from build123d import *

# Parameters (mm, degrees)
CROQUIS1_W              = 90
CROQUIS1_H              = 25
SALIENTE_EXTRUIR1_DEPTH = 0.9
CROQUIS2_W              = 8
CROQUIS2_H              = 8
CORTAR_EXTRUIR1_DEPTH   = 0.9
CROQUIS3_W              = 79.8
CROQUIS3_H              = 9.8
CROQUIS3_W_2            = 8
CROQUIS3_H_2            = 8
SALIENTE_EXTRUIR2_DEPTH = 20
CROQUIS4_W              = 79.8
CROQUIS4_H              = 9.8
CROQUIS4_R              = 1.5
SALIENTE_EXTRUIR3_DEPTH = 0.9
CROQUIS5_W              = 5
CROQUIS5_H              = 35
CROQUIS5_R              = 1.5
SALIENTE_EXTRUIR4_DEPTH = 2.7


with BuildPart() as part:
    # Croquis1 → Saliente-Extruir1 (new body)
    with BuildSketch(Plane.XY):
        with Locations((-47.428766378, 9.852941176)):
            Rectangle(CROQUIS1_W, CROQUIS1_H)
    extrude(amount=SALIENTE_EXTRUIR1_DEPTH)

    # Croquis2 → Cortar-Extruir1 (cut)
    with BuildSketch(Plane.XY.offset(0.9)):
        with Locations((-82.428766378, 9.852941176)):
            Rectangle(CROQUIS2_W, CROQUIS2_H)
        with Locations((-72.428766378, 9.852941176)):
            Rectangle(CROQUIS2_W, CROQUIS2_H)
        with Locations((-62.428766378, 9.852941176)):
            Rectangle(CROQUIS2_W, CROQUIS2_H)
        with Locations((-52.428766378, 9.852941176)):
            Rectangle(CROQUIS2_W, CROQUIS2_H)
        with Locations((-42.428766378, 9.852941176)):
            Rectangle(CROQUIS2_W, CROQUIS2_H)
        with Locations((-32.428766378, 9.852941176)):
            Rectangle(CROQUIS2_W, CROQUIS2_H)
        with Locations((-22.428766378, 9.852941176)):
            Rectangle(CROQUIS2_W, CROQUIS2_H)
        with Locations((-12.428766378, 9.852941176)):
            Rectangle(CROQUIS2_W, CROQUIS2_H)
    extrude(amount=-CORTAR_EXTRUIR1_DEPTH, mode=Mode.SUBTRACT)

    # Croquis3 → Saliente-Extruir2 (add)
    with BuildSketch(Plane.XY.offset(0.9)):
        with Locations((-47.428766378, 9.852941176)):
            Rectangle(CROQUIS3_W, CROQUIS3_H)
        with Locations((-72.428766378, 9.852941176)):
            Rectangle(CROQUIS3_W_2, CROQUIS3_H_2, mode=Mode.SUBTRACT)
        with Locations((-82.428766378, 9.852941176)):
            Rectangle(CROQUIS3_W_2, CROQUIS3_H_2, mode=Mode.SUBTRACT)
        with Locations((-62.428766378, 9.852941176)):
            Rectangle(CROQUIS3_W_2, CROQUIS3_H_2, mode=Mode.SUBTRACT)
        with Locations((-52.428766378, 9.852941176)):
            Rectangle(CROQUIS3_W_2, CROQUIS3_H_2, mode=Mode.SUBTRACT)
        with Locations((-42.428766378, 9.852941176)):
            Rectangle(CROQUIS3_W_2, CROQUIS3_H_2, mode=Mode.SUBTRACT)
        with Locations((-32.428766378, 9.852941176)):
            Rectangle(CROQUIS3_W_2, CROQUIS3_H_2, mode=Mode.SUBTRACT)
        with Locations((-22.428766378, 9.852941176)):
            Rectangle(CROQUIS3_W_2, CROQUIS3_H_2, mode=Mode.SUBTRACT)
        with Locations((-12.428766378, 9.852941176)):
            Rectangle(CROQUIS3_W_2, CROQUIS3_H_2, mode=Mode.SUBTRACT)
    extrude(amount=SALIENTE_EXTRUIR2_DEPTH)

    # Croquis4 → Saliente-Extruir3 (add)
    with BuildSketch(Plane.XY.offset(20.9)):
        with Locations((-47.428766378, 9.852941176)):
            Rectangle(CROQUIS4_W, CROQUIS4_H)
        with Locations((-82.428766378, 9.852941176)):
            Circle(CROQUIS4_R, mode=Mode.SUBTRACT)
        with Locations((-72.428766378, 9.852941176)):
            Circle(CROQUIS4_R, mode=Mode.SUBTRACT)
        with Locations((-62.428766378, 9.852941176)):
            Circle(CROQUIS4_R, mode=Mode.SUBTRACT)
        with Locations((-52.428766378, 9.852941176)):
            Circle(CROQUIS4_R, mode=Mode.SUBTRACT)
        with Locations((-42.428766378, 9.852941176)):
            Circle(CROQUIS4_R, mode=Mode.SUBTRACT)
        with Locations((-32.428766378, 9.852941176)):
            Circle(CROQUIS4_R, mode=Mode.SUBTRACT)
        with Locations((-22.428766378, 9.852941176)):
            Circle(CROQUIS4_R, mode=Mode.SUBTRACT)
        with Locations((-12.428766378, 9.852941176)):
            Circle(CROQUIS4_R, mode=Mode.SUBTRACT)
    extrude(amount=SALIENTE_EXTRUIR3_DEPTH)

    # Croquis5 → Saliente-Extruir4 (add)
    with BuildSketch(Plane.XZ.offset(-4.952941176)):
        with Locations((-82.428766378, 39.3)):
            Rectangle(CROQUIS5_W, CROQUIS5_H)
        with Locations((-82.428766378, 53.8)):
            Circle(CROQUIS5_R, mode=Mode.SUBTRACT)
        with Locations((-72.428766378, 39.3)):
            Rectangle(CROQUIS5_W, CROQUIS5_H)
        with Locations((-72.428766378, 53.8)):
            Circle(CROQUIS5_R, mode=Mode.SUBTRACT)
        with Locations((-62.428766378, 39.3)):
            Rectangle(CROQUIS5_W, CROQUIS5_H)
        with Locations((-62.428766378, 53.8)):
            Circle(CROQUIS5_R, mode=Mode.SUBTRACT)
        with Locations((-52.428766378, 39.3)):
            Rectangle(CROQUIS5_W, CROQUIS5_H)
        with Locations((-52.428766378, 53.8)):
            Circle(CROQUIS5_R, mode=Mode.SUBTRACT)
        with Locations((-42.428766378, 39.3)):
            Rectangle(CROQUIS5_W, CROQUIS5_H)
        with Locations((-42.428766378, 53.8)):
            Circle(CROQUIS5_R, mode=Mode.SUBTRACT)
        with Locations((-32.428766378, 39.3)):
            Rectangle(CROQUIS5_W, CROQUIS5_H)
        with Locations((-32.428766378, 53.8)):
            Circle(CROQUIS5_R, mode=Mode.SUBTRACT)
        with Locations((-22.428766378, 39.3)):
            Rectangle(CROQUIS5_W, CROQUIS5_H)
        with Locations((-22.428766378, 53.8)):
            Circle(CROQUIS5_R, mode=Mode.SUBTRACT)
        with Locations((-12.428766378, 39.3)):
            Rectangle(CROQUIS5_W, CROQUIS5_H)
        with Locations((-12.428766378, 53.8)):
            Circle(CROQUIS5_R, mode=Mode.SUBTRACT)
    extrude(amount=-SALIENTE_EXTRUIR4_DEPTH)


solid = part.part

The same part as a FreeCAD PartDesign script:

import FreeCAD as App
import Part
import Sketcher
Q = App.Units.Quantity


def add_polygon(sketch, points):
    """Adds a closed chain of lines whose ends are joined by coincident constraints."""
    first, n = sketch.GeometryCount, len(points)
    for a, b in zip(points, points[1:] + points[:1]):
        sketch.addGeometry(Part.LineSegment(App.Vector(*a, 0), App.Vector(*b, 0)), False)
    for i in range(n):
        sketch.addConstraint(Sketcher.Constraint("Coincident", first + i, 2, first + (i + 1) % n, 1))

doc = App.newDocument("Part")
params = doc.addObject("Spreadsheet::Sheet", "Params")
for row, (alias, value) in enumerate([
    ("sketch1_width", "90 mm"),
    ("sketch1_height", "25 mm"),
    ("pad1_length", "0.9 mm"),
    ("sketch2_width", "8 mm"),
    ("pocket1_length", "0.9 mm"),
    ("sketch3_width", "8 mm"),
    ("sketch3_width2", "79.8 mm"),
    ("sketch3_height", "9.8 mm"),
    ("pad2_length", "20 mm"),
    ("sketch4_diameter", "3 mm"),
    ("sketch4_width", "79.8 mm"),
    ("sketch4_height", "9.8 mm"),
    ("pad3_length", "0.9 mm"),
    ("sketch5_diameter", "3 mm"),
    ("sketch5_width", "5 mm"),
    ("sketch5_height", "35 mm"),
    ("pad4_length", "2.7 mm"),
], start=1):
    params.set(f"A{row}", alias)
    params.set(f"B{row}", "=" + value)
    params.setAlias(f"B{row}", alias)

body = doc.addObject("PartDesign::Body", "Body")

# Sketch on XY plane
sketch1 = body.newObject("Sketcher::SketchObject", "Sketch")
sketch1.AttachmentSupport = (doc.getObject("XY_Plane"), [""])
sketch1.MapMode = "FlatFace"
add_polygon(sketch1, [(-92, 22), (-92, -3), (-2, -3), (-2, 22)])  # lines 0-3
sketch1.addConstraint([
    Sketcher.Constraint("Vertical", 0),
    Sketcher.Constraint("Horizontal", 1),
    Sketcher.Constraint("Vertical", 2),
    Sketcher.Constraint("Horizontal", 3),
    Sketcher.Constraint("DistanceX", 1, 1, 1, 2, Q("90 mm")),
    Sketcher.Constraint("DistanceY", 0, 2, 0, 1, Q("25 mm")),
    Sketcher.Constraint("DistanceY", 0, 2, -1, 1, Q("2.647059 mm")),
    Sketcher.Constraint("DistanceX", 0, 2, -1, 1, Q("92.428766 mm")),
])
sketch1.setExpression("Constraints[8]", "Params.sketch1_width")
sketch1.setExpression("Constraints[9]", "Params.sketch1_height")
pad1 = body.newObject("PartDesign::Pad", "Pad")
pad1.Profile = sketch1
pad1.setExpression("Length", "Params.pad1_length")

# Sketch on XY plane
sketch2 = body.newObject("Sketcher::SketchObject", "Sketch001")
sketch2.AttachmentSupport = (doc.getObject("XY_Plane"), [""])
sketch2.MapMode = "FlatFace"
sketch2.AttachmentOffset = App.Placement(App.Vector(0, 0, 0.9), App.Rotation())
add_polygon(sketch2, [(-86, 14), (-86, 6), (-78, 6), (-78, 14)])  # lines 0-3
add_polygon(sketch2, [(-76, 14), (-76, 6), (-68, 6), (-68, 14)])  # lines 4-7
add_polygon(sketch2, [(-66, 14), (-66, 6), (-58, 6), (-58, 14)])  # lines 8-11
add_polygon(sketch2, [(-56, 14), (-56, 6), (-48, 6), (-48, 14)])  # lines 12-15
add_polygon(sketch2, [(-46, 14), (-46, 6), (-38, 6), (-38, 14)])  # lines 16-19
add_polygon(sketch2, [(-36, 14), (-36, 6), (-28, 6), (-28, 14)])  # lines 20-23
add_polygon(sketch2, [(-26, 14), (-26, 6), (-18, 6), (-18, 14)])  # lines 24-27
add_polygon(sketch2, [(-16, 14), (-16, 6), (-8, 6), (-8, 14)])  # lines 28-31
sketch2.addConstraint([
    Sketcher.Constraint("Vertical", 0),
    Sketcher.Constraint("Horizontal", 1),
    Sketcher.Constraint("Vertical", 2),
    Sketcher.Constraint("Horizontal", 3),
    Sketcher.Constraint("Vertical", 4),
    Sketcher.Constraint("Horizontal", 5),
    Sketcher.Constraint("Vertical", 6),
    Sketcher.Constraint("Horizontal", 7),
    Sketcher.Constraint("Vertical", 8),
    Sketcher.Constraint("Horizontal", 9),
    Sketcher.Constraint("Vertical", 10),
    Sketcher.Constraint("Horizontal", 11),
    Sketcher.Constraint("Vertical", 12),
    Sketcher.Constraint("Horizontal", 13),
    Sketcher.Constraint("Vertical", 14),
    Sketcher.Constraint("Horizontal", 15),
    Sketcher.Constraint("Vertical", 16),
    Sketcher.Constraint("Horizontal", 17),
    Sketcher.Constraint("Vertical", 18),
    Sketcher.Constraint("Horizontal", 19),
    Sketcher.Constraint("Vertical", 20),
    Sketcher.Constraint("Horizontal", 21),
    Sketcher.Constraint("Vertical", 22),
    Sketcher.Constraint("Horizontal", 23),
    Sketcher.Constraint("Vertical", 24),
    Sketcher.Constraint("Horizontal", 25),
    Sketcher.Constraint("Vertical", 26),
    Sketcher.Constraint("Horizontal", 27),
    Sketcher.Constraint("Vertical", 28),
    Sketcher.Constraint("Horizontal", 29),
    Sketcher.Constraint("Vertical", 30),
    Sketcher.Constraint("Horizontal", 31),
    Sketcher.Constraint("Horizontal", 1, 2, 4, 2),
    Sketcher.Constraint("Horizontal", 3, 2, 6, 2),
    Sketcher.Constraint("Horizontal", 5, 2, 8, 2),
    Sketcher.Constraint("Horizontal", 7, 2, 10, 2),
    Sketcher.Constraint("Horizontal", 9, 2, 12, 2),
    Sketcher.Constraint("Horizontal", 11, 2, 14, 2),
    Sketcher.Constraint("Horizontal", 13, 2, 16, 2),
    Sketcher.Constraint("Horizontal", 15, 2, 18, 2),
    Sketcher.Constraint("Horizontal", 17, 2, 20, 2),
    Sketcher.Constraint("Horizontal", 19, 2, 22, 2),
    Sketcher.Constraint("Horizontal", 21, 2, 24, 2),
    Sketcher.Constraint("Horizontal", 23, 2, 26, 2),
    Sketcher.Constraint("Horizontal", 25, 2, 28, 2),
    Sketcher.Constraint("Horizontal", 27, 2, 30, 2),
    Sketcher.Constraint("Equal", 3, 5),
    Sketcher.Constraint("Equal", 7, 9),
    Sketcher.Constraint("Equal", 11, 13),
    Sketcher.Constraint("Equal", 15, 17),
    Sketcher.Constraint("Equal", 19, 21),
    Sketcher.Constraint("Equal", 23, 25),
    Sketcher.Constraint("Equal", 27, 29),
    Sketcher.Constraint("Equal", 31, 0),
    Sketcher.Constraint("DistanceX", 1, 1, 1, 2, Q("8 mm")),
    Sketcher.Constraint("DistanceX", 1, 2, 4, 2, Q("2 mm")),
    Sketcher.Constraint("DistanceX", 5, 2, 8, 2, Q("2 mm")),
    Sketcher.Constraint("DistanceX", 9, 2, 12, 2, Q("2 mm")),
    Sketcher.Constraint("DistanceX", 13, 2, 16, 2, Q("2 mm")),
    Sketcher.Constraint("DistanceX", 17, 2, 20, 2, Q("2 mm")),
    Sketcher.Constraint("DistanceX", 21, 2, 24, 2, Q("2 mm")),
    Sketcher.Constraint("DistanceX", 25, 2, 28, 2, Q("2 mm")),
    Sketcher.Constraint("DistanceY", -1, 1, 0, 2, Q("5.852941 mm")),
    Sketcher.Constraint("DistanceX", 0, 2, -1, 1, Q("86.428766 mm")),
])
sketch2.setExpression("Constraints[86]", "Params.sketch2_width")
pocket1 = body.newObject("PartDesign::Pocket", "Pocket")
pocket1.Profile = sketch2
pocket1.setExpression("Length", "Params.pocket1_length")

# Sketch on XY plane
sketch3 = body.newObject("Sketcher::SketchObject", "Sketch002")
sketch3.AttachmentSupport = (doc.getObject("XY_Plane"), [""])
sketch3.MapMode = "FlatFace"
sketch3.AttachmentOffset = App.Placement(App.Vector(0, 0, 0.9), App.Rotation())
add_polygon(sketch3, [(-87, 15), (-87, 5), (-8, 5), (-8, 15)])  # lines 0-3
add_polygon(sketch3, [(-78, 6), (-86, 6), (-86, 14), (-78, 14)])  # lines 4-7
add_polygon(sketch3, [(-68, 6), (-76, 6), (-76, 14), (-68, 14)])  # lines 8-11
add_polygon(sketch3, [(-58, 6), (-66, 6), (-66, 14), (-58, 14)])  # lines 12-15
add_polygon(sketch3, [(-48, 6), (-56, 6), (-56, 14), (-48, 14)])  # lines 16-19
add_polygon(sketch3, [(-38, 6), (-46, 6), (-46, 14), (-38, 14)])  # lines 20-23
add_polygon(sketch3, [(-28, 6), (-36, 6), (-36, 14), (-28, 14)])  # lines 24-27
add_polygon(sketch3, [(-18, 6), (-26, 6), (-26, 14), (-18, 14)])  # lines 28-31
add_polygon(sketch3, [(-8, 6), (-16, 6), (-16, 14), (-8, 14)])  # lines 32-35
sketch3.addConstraint([
    Sketcher.Constraint("Vertical", 0),
    Sketcher.Constraint("Horizontal", 1),
    Sketcher.Constraint("Vertical", 2),
    Sketcher.Constraint("Horizontal", 3),
    Sketcher.Constraint("Horizontal", 4),
    Sketcher.Constraint("Vertical", 5),
    Sketcher.Constraint("Horizontal", 6),
    Sketcher.Constraint("Vertical", 7),
    Sketcher.Constraint("Horizontal", 8),
    Sketcher.Constraint("Vertical", 9),
    Sketcher.Constraint("Horizontal", 10),
    Sketcher.Constraint("Vertical", 11),
    Sketcher.Constraint("Horizontal", 12),
    Sketcher.Constraint("Vertical", 13),
    Sketcher.Constraint("Horizontal", 14),
    Sketcher.Constraint("Vertical", 15),
    Sketcher.Constraint("Horizontal", 16),
    Sketcher.Constraint("Vertical", 17),
    Sketcher.Constraint("Horizontal", 18),
    Sketcher.Constraint("Vertical", 19),
    Sketcher.Constraint("Horizontal", 20),
    Sketcher.Constraint("Vertical", 21),
    Sketcher.Constraint("Horizontal", 22),
    Sketcher.Constraint("Vertical", 23),
    Sketcher.Constraint("Horizontal", 24),
    Sketcher.Constraint("Vertical", 25),
    Sketcher.Constraint("Horizontal", 26),
    Sketcher.Constraint("Vertical", 27),
    Sketcher.Constraint("Horizontal", 28),
    Sketcher.Constraint("Vertical", 29),
    Sketcher.Constraint("Horizontal", 30),
    Sketcher.Constraint("Vertical", 31),
    Sketcher.Constraint("Horizontal", 32),
    Sketcher.Constraint("Vertical", 33),
    Sketcher.Constraint("Horizontal", 34),
    Sketcher.Constraint("Vertical", 35),
    Sketcher.Constraint("Horizontal", 7, 2, 8, 2),
    Sketcher.Constraint("Horizontal", 6, 2, 9, 2),
    Sketcher.Constraint("Horizontal", 11, 2, 12, 2),
    Sketcher.Constraint("Horizontal", 10, 2, 13, 2),
    Sketcher.Constraint("Horizontal", 15, 2, 16, 2),
    Sketcher.Constraint("Horizontal", 14, 2, 17, 2),
    Sketcher.Constraint("Horizontal", 19, 2, 20, 2),
    Sketcher.Constraint("Horizontal", 18, 2, 21, 2),
    Sketcher.Constraint("Horizontal", 23, 2, 24, 2),
    Sketcher.Constraint("Horizontal", 22, 2, 25, 2),
    Sketcher.Constraint("Horizontal", 27, 2, 28, 2),
    Sketcher.Constraint("Horizontal", 26, 2, 29, 2),
    Sketcher.Constraint("Horizontal", 31, 2, 32, 2),
    Sketcher.Constraint("Horizontal", 30, 2, 33, 2),
    Sketcher.Constraint("Equal", 6, 8),
    Sketcher.Constraint("Equal", 10, 12),
    Sketcher.Constraint("Equal", 14, 16),
    Sketcher.Constraint("Equal", 18, 20),
    Sketcher.Constraint("Equal", 22, 24),
    Sketcher.Constraint("Equal", 26, 28),
    Sketcher.Constraint("Equal", 30, 32),
    Sketcher.Constraint("Equal", 34, 5),
    Sketcher.Constraint("DistanceX", 4, 2, 4, 1, Q("8 mm")),
    Sketcher.Constraint("DistanceX", 1, 1, 1, 2, Q("79.8 mm")),
    Sketcher.Constraint("DistanceY", 0, 2, 0, 1, Q("9.8 mm")),
    Sketcher.Constraint("DistanceX", 7, 2, 8, 2, Q("2 mm")),
    Sketcher.Constraint("DistanceX", 11, 2, 12, 2, Q("2 mm")),
    Sketcher.Constraint("DistanceX", 15, 2, 16, 2, Q("2 mm")),
    Sketcher.Constraint("DistanceX", 19, 2, 20, 2, Q("2 mm")),
    Sketcher.Constraint("DistanceX", 23, 2, 24, 2, Q("2 mm")),
    Sketcher.Constraint("DistanceX", 27, 2, 28, 2, Q("2 mm")),
    Sketcher.Constraint("DistanceX", 31, 2, 32, 2, Q("2 mm")),
    Sketcher.Constraint("DistanceX", 0, 2, 4, 2, Q("0.9 mm")),
    Sketcher.Constraint("DistanceY", 0, 2, 4, 2, Q("0.9 mm")),
    Sketcher.Constraint("DistanceY", -1, 1, 0, 2, Q("4.952941 mm")),
    Sketcher.Constraint("DistanceX", 0, 2, -1, 1, Q("87.328766 mm")),
])
sketch3.setExpression("Constraints[94]", "Params.sketch3_width")
sketch3.setExpression("Constraints[95]", "Params.sketch3_width2")
sketch3.setExpression("Constraints[96]", "Params.sketch3_height")
pad2 = body.newObject("PartDesign::Pad", "Pad001")
pad2.Profile = sketch3
pad2.setExpression("Length", "Params.pad2_length")

# Sketch on XY plane
sketch4 = body.newObject("Sketcher::SketchObject", "Sketch003")
sketch4.AttachmentSupport = (doc.getObject("XY_Plane"), [""])
sketch4.MapMode = "FlatFace"
sketch4.AttachmentOffset = App.Placement(App.Vector(0, 0, 20.9), App.Rotation())
add_polygon(sketch4, [(-87.3, 14.8), (-87.3, 5), (-7.5, 5), (-7.5, 14.8)])  # lines 0-3
sketch4.addGeometry(Part.Circle(App.Vector(-82.4, 9.9, 0), App.Vector(0, 0, 1), 1.5), False)  # 4
sketch4.addGeometry(Part.Circle(App.Vector(-72.4, 9.9, 0), App.Vector(0, 0, 1), 1.5), False)  # 5
sketch4.addGeometry(Part.Circle(App.Vector(-62.4, 9.9, 0), App.Vector(0, 0, 1), 1.5), False)  # 6
sketch4.addGeometry(Part.Circle(App.Vector(-52.4, 9.9, 0), App.Vector(0, 0, 1), 1.5), False)  # 7
sketch4.addGeometry(Part.Circle(App.Vector(-42.4, 9.9, 0), App.Vector(0, 0, 1), 1.5), False)  # 8
sketch4.addGeometry(Part.Circle(App.Vector(-32.4, 9.9, 0), App.Vector(0, 0, 1), 1.5), False)  # 9
sketch4.addGeometry(Part.Circle(App.Vector(-22.4, 9.9, 0), App.Vector(0, 0, 1), 1.5), False)  # 10
sketch4.addGeometry(Part.Circle(App.Vector(-12.4, 9.9, 0), App.Vector(0, 0, 1), 1.5), False)  # 11
sketch4.addConstraint([
    Sketcher.Constraint("Vertical", 0),
    Sketcher.Constraint("Horizontal", 1),
    Sketcher.Constraint("Vertical", 2),
    Sketcher.Constraint("Horizontal", 3),
    Sketcher.Constraint("Equal", 4, 5),
    Sketcher.Constraint("Equal", 5, 6),
    Sketcher.Constraint("Equal", 6, 7),
    Sketcher.Constraint("Equal", 7, 8),
    Sketcher.Constraint("Equal", 8, 9),
    Sketcher.Constraint("Equal", 9, 10),
    Sketcher.Constraint("Equal", 10, 11),
    Sketcher.Constraint("Horizontal", 4, 3, 5, 3),
    Sketcher.Constraint("Horizontal", 5, 3, 6, 3),
    Sketcher.Constraint("Horizontal", 6, 3, 7, 3),
    Sketcher.Constraint("Horizontal", 7, 3, 8, 3),
    Sketcher.Constraint("Horizontal", 8, 3, 9, 3),
    Sketcher.Constraint("Horizontal", 9, 3, 10, 3),
    Sketcher.Constraint("Horizontal", 10, 3, 11, 3),
    Sketcher.Constraint("Diameter", 4, Q("3 mm")),
    Sketcher.Constraint("DistanceX", 1, 1, 1, 2, Q("79.8 mm")),
    Sketcher.Constraint("DistanceY", 0, 2, 0, 1, Q("9.8 mm")),
    Sketcher.Constraint("DistanceX", 4, 3, 5, 3, Q("10 mm")),
    Sketcher.Constraint("DistanceX", 5, 3, 6, 3, Q("10 mm")),
    Sketcher.Constraint("DistanceX", 6, 3, 7, 3, Q("10 mm")),
    Sketcher.Constraint("DistanceX", 7, 3, 8, 3, Q("10 mm")),
    Sketcher.Constraint("DistanceX", 8, 3, 9, 3, Q("10 mm")),
    Sketcher.Constraint("DistanceX", 9, 3, 10, 3, Q("10 mm")),
    Sketcher.Constraint("DistanceX", 10, 3, 11, 3, Q("10 mm")),
    Sketcher.Constraint("DistanceX", 0, 2, 4, 3, Q("4.9 mm")),
    Sketcher.Constraint("DistanceY", 0, 2, 4, 3, Q("4.9 mm")),
    Sketcher.Constraint("DistanceY", -1, 1, 4, 3, Q("9.852941 mm")),
    Sketcher.Constraint("DistanceX", 4, 3, -1, 1, Q("82.428766 mm")),
])
sketch4.setExpression("Constraints[22]", "Params.sketch4_diameter")
sketch4.setExpression("Constraints[23]", "Params.sketch4_width")
sketch4.setExpression("Constraints[24]", "Params.sketch4_height")
pad3 = body.newObject("PartDesign::Pad", "Pad002")
pad3.Profile = sketch4
pad3.setExpression("Length", "Params.pad3_length")

# Sketch on XZ plane
sketch5 = body.newObject("Sketcher::SketchObject", "Sketch004")
sketch5.AttachmentSupport = (doc.getObject("XZ_Plane"), [""])
sketch5.MapMode = "FlatFace"
sketch5.AttachmentOffset = App.Placement(App.Vector(0, 0, -4.952941), App.Rotation())
add_polygon(sketch5, [(-84.9, 56.8), (-84.9, 21.8), (-79.9, 21.8), (-79.9, 56.8)])  # lines 0-3
sketch5.addGeometry(Part.Circle(App.Vector(-82.4, 53.8, 0), App.Vector(0, 0, 1), 1.5), False)  # 4
add_polygon(sketch5, [(-74.9, 56.8), (-74.9, 21.8), (-69.9, 21.8), (-69.9, 56.8)])  # lines 5-8
sketch5.addGeometry(Part.Circle(App.Vector(-72.4, 53.8, 0), App.Vector(0, 0, 1), 1.5), False)  # 9
add_polygon(sketch5, [(-64.9, 56.8), (-64.9, 21.8), (-59.9, 21.8), (-59.9, 56.8)])  # lines 10-13
sketch5.addGeometry(Part.Circle(App.Vector(-62.4, 53.8, 0), App.Vector(0, 0, 1), 1.5), False)  # 14
add_polygon(sketch5, [(-54.9, 56.8), (-54.9, 21.8), (-49.9, 21.8), (-49.9, 56.8)])  # lines 15-18
sketch5.addGeometry(Part.Circle(App.Vector(-52.4, 53.8, 0), App.Vector(0, 0, 1), 1.5), False)  # 19
add_polygon(sketch5, [(-44.9, 56.8), (-44.9, 21.8), (-39.9, 21.8), (-39.9, 56.8)])  # lines 20-23
sketch5.addGeometry(Part.Circle(App.Vector(-42.4, 53.8, 0), App.Vector(0, 0, 1), 1.5), False)  # 24
add_polygon(sketch5, [(-34.9, 56.8), (-34.9, 21.8), (-29.9, 21.8), (-29.9, 56.8)])  # lines 25-28
sketch5.addGeometry(Part.Circle(App.Vector(-32.4, 53.8, 0), App.Vector(0, 0, 1), 1.5), False)  # 29
add_polygon(sketch5, [(-24.9, 56.8), (-24.9, 21.8), (-19.9, 21.8), (-19.9, 56.8)])  # lines 30-33
sketch5.addGeometry(Part.Circle(App.Vector(-22.4, 53.8, 0), App.Vector(0, 0, 1), 1.5), False)  # 34
add_polygon(sketch5, [(-14.9, 56.8), (-14.9, 21.8), (-9.9, 21.8), (-9.9, 56.8)])  # lines 35-38
sketch5.addGeometry(Part.Circle(App.Vector(-12.4, 53.8, 0), App.Vector(0, 0, 1), 1.5), False)  # 39
sketch5.addConstraint([
    Sketcher.Constraint("Vertical", 0),
    Sketcher.Constraint("Horizontal", 1),
    Sketcher.Constraint("Vertical", 2),
    Sketcher.Constraint("Horizontal", 3),
    Sketcher.Constraint("Vertical", 5),
    Sketcher.Constraint("Horizontal", 6),
    Sketcher.Constraint("Vertical", 7),
    Sketcher.Constraint("Horizontal", 8),
    Sketcher.Constraint("Vertical", 10),
    Sketcher.Constraint("Horizontal", 11),
    Sketcher.Constraint("Vertical", 12),
    Sketcher.Constraint("Horizontal", 13),
    Sketcher.Constraint("Vertical", 15),
    Sketcher.Constraint("Horizontal", 16),
    Sketcher.Constraint("Vertical", 17),
    Sketcher.Constraint("Horizontal", 18),
    Sketcher.Constraint("Vertical", 20),
    Sketcher.Constraint("Horizontal", 21),
    Sketcher.Constraint("Vertical", 22),
    Sketcher.Constraint("Horizontal", 23),
    Sketcher.Constraint("Vertical", 25),
    Sketcher.Constraint("Horizontal", 26),
    Sketcher.Constraint("Vertical", 27),
    Sketcher.Constraint("Horizontal", 28),
    Sketcher.Constraint("Vertical", 30),
    Sketcher.Constraint("Horizontal", 31),
    Sketcher.Constraint("Vertical", 32),
    Sketcher.Constraint("Horizontal", 33),
    Sketcher.Constraint("Vertical", 35),
    Sketcher.Constraint("Horizontal", 36),
    Sketcher.Constraint("Vertical", 37),
    Sketcher.Constraint("Horizontal", 38),
    Sketcher.Constraint("Equal", 4, 9),
    Sketcher.Constraint("Equal", 9, 14),
    Sketcher.Constraint("Equal", 14, 19),
    Sketcher.Constraint("Equal", 19, 24),
    Sketcher.Constraint("Equal", 24, 29),
    Sketcher.Constraint("Equal", 29, 34),
    Sketcher.Constraint("Equal", 34, 39),
    Sketcher.Constraint("Horizontal", 4, 3, 9, 3),
    Sketcher.Constraint("Horizontal", 9, 3, 14, 3),
    Sketcher.Constraint("Horizontal", 14, 3, 19, 3),
    Sketcher.Constraint("Horizontal", 19, 3, 24, 3),
    Sketcher.Constraint("Horizontal", 24, 3, 29, 3),
    Sketcher.Constraint("Horizontal", 29, 3, 34, 3),
    Sketcher.Constraint("Horizontal", 34, 3, 39, 3),
    Sketcher.Constraint("Horizontal", 1, 2, 5, 2),
    Sketcher.Constraint("Horizontal", 3, 2, 7, 2),
    Sketcher.Constraint("Horizontal", 6, 2, 10, 2),
    Sketcher.Constraint("Horizontal", 8, 2, 12, 2),
    Sketcher.Constraint("Horizontal", 11, 2, 15, 2),
    Sketcher.Constraint("Horizontal", 13, 2, 17, 2),
    Sketcher.Constraint("Horizontal", 16, 2, 20, 2),
    Sketcher.Constraint("Horizontal", 18, 2, 22, 2),
    Sketcher.Constraint("Horizontal", 21, 2, 25, 2),
    Sketcher.Constraint("Horizontal", 23, 2, 27, 2),
    Sketcher.Constraint("Horizontal", 26, 2, 30, 2),
    Sketcher.Constraint("Horizontal", 28, 2, 32, 2),
    Sketcher.Constraint("Horizontal", 31, 2, 35, 2),
    Sketcher.Constraint("Horizontal", 33, 2, 37, 2),
    Sketcher.Constraint("Equal", 3, 6),
    Sketcher.Constraint("Equal", 8, 11),
    Sketcher.Constraint("Equal", 13, 16),
    Sketcher.Constraint("Equal", 18, 21),
    Sketcher.Constraint("Equal", 23, 26),
    Sketcher.Constraint("Equal", 28, 31),
    Sketcher.Constraint("Equal", 33, 36),
    Sketcher.Constraint("Diameter", 4, Q("3 mm")),
    Sketcher.Constraint("DistanceX", 1, 1, 1, 2, Q("5 mm")),
    Sketcher.Constraint("DistanceY", 0, 2, 0, 1, Q("35 mm")),
    Sketcher.Constraint("DistanceX", 4, 3, 9, 3, Q("10 mm")),
    Sketcher.Constraint("DistanceX", 9, 3, 14, 3, Q("10 mm")),
    Sketcher.Constraint("DistanceX", 14, 3, 19, 3, Q("10 mm")),
    Sketcher.Constraint("DistanceX", 19, 3, 24, 3, Q("10 mm")),
    Sketcher.Constraint("DistanceX", 24, 3, 29, 3, Q("10 mm")),
    Sketcher.Constraint("DistanceX", 29, 3, 34, 3, Q("10 mm")),
    Sketcher.Constraint("DistanceX", 34, 3, 39, 3, Q("10 mm")),
    Sketcher.Constraint("DistanceY", 0, 2, 4, 3, Q("32 mm")),
    Sketcher.Constraint("DistanceX", 1, 2, 5, 2, Q("5 mm")),
    Sketcher.Constraint("DistanceX", 6, 2, 10, 2, Q("5 mm")),
    Sketcher.Constraint("DistanceX", 11, 2, 15, 2, Q("5 mm")),
    Sketcher.Constraint("DistanceX", 16, 2, 20, 2, Q("5 mm")),
    Sketcher.Constraint("DistanceX", 21, 2, 25, 2, Q("5 mm")),
    Sketcher.Constraint("DistanceX", 26, 2, 30, 2, Q("5 mm")),
    Sketcher.Constraint("DistanceX", 31, 2, 35, 2, Q("5 mm")),
    Sketcher.Constraint("DistanceY", -1, 1, 4, 3, Q("53.8 mm")),
    Sketcher.Constraint("DistanceX", 0, 2, 4, 3, Q("2.5 mm")),
    Sketcher.Constraint("DistanceX", 4, 3, -1, 1, Q("82.428766 mm")),
])
sketch5.setExpression("Constraints[99]", "Params.sketch5_diameter")
sketch5.setExpression("Constraints[100]", "Params.sketch5_width")
sketch5.setExpression("Constraints[101]", "Params.sketch5_height")
pad4 = body.newObject("PartDesign::Pad", "Pad003")
pad4.Profile = sketch5
pad4.setExpression("Length", "Params.pad4_length")
pad4.Reversed = True

doc.recompute()
